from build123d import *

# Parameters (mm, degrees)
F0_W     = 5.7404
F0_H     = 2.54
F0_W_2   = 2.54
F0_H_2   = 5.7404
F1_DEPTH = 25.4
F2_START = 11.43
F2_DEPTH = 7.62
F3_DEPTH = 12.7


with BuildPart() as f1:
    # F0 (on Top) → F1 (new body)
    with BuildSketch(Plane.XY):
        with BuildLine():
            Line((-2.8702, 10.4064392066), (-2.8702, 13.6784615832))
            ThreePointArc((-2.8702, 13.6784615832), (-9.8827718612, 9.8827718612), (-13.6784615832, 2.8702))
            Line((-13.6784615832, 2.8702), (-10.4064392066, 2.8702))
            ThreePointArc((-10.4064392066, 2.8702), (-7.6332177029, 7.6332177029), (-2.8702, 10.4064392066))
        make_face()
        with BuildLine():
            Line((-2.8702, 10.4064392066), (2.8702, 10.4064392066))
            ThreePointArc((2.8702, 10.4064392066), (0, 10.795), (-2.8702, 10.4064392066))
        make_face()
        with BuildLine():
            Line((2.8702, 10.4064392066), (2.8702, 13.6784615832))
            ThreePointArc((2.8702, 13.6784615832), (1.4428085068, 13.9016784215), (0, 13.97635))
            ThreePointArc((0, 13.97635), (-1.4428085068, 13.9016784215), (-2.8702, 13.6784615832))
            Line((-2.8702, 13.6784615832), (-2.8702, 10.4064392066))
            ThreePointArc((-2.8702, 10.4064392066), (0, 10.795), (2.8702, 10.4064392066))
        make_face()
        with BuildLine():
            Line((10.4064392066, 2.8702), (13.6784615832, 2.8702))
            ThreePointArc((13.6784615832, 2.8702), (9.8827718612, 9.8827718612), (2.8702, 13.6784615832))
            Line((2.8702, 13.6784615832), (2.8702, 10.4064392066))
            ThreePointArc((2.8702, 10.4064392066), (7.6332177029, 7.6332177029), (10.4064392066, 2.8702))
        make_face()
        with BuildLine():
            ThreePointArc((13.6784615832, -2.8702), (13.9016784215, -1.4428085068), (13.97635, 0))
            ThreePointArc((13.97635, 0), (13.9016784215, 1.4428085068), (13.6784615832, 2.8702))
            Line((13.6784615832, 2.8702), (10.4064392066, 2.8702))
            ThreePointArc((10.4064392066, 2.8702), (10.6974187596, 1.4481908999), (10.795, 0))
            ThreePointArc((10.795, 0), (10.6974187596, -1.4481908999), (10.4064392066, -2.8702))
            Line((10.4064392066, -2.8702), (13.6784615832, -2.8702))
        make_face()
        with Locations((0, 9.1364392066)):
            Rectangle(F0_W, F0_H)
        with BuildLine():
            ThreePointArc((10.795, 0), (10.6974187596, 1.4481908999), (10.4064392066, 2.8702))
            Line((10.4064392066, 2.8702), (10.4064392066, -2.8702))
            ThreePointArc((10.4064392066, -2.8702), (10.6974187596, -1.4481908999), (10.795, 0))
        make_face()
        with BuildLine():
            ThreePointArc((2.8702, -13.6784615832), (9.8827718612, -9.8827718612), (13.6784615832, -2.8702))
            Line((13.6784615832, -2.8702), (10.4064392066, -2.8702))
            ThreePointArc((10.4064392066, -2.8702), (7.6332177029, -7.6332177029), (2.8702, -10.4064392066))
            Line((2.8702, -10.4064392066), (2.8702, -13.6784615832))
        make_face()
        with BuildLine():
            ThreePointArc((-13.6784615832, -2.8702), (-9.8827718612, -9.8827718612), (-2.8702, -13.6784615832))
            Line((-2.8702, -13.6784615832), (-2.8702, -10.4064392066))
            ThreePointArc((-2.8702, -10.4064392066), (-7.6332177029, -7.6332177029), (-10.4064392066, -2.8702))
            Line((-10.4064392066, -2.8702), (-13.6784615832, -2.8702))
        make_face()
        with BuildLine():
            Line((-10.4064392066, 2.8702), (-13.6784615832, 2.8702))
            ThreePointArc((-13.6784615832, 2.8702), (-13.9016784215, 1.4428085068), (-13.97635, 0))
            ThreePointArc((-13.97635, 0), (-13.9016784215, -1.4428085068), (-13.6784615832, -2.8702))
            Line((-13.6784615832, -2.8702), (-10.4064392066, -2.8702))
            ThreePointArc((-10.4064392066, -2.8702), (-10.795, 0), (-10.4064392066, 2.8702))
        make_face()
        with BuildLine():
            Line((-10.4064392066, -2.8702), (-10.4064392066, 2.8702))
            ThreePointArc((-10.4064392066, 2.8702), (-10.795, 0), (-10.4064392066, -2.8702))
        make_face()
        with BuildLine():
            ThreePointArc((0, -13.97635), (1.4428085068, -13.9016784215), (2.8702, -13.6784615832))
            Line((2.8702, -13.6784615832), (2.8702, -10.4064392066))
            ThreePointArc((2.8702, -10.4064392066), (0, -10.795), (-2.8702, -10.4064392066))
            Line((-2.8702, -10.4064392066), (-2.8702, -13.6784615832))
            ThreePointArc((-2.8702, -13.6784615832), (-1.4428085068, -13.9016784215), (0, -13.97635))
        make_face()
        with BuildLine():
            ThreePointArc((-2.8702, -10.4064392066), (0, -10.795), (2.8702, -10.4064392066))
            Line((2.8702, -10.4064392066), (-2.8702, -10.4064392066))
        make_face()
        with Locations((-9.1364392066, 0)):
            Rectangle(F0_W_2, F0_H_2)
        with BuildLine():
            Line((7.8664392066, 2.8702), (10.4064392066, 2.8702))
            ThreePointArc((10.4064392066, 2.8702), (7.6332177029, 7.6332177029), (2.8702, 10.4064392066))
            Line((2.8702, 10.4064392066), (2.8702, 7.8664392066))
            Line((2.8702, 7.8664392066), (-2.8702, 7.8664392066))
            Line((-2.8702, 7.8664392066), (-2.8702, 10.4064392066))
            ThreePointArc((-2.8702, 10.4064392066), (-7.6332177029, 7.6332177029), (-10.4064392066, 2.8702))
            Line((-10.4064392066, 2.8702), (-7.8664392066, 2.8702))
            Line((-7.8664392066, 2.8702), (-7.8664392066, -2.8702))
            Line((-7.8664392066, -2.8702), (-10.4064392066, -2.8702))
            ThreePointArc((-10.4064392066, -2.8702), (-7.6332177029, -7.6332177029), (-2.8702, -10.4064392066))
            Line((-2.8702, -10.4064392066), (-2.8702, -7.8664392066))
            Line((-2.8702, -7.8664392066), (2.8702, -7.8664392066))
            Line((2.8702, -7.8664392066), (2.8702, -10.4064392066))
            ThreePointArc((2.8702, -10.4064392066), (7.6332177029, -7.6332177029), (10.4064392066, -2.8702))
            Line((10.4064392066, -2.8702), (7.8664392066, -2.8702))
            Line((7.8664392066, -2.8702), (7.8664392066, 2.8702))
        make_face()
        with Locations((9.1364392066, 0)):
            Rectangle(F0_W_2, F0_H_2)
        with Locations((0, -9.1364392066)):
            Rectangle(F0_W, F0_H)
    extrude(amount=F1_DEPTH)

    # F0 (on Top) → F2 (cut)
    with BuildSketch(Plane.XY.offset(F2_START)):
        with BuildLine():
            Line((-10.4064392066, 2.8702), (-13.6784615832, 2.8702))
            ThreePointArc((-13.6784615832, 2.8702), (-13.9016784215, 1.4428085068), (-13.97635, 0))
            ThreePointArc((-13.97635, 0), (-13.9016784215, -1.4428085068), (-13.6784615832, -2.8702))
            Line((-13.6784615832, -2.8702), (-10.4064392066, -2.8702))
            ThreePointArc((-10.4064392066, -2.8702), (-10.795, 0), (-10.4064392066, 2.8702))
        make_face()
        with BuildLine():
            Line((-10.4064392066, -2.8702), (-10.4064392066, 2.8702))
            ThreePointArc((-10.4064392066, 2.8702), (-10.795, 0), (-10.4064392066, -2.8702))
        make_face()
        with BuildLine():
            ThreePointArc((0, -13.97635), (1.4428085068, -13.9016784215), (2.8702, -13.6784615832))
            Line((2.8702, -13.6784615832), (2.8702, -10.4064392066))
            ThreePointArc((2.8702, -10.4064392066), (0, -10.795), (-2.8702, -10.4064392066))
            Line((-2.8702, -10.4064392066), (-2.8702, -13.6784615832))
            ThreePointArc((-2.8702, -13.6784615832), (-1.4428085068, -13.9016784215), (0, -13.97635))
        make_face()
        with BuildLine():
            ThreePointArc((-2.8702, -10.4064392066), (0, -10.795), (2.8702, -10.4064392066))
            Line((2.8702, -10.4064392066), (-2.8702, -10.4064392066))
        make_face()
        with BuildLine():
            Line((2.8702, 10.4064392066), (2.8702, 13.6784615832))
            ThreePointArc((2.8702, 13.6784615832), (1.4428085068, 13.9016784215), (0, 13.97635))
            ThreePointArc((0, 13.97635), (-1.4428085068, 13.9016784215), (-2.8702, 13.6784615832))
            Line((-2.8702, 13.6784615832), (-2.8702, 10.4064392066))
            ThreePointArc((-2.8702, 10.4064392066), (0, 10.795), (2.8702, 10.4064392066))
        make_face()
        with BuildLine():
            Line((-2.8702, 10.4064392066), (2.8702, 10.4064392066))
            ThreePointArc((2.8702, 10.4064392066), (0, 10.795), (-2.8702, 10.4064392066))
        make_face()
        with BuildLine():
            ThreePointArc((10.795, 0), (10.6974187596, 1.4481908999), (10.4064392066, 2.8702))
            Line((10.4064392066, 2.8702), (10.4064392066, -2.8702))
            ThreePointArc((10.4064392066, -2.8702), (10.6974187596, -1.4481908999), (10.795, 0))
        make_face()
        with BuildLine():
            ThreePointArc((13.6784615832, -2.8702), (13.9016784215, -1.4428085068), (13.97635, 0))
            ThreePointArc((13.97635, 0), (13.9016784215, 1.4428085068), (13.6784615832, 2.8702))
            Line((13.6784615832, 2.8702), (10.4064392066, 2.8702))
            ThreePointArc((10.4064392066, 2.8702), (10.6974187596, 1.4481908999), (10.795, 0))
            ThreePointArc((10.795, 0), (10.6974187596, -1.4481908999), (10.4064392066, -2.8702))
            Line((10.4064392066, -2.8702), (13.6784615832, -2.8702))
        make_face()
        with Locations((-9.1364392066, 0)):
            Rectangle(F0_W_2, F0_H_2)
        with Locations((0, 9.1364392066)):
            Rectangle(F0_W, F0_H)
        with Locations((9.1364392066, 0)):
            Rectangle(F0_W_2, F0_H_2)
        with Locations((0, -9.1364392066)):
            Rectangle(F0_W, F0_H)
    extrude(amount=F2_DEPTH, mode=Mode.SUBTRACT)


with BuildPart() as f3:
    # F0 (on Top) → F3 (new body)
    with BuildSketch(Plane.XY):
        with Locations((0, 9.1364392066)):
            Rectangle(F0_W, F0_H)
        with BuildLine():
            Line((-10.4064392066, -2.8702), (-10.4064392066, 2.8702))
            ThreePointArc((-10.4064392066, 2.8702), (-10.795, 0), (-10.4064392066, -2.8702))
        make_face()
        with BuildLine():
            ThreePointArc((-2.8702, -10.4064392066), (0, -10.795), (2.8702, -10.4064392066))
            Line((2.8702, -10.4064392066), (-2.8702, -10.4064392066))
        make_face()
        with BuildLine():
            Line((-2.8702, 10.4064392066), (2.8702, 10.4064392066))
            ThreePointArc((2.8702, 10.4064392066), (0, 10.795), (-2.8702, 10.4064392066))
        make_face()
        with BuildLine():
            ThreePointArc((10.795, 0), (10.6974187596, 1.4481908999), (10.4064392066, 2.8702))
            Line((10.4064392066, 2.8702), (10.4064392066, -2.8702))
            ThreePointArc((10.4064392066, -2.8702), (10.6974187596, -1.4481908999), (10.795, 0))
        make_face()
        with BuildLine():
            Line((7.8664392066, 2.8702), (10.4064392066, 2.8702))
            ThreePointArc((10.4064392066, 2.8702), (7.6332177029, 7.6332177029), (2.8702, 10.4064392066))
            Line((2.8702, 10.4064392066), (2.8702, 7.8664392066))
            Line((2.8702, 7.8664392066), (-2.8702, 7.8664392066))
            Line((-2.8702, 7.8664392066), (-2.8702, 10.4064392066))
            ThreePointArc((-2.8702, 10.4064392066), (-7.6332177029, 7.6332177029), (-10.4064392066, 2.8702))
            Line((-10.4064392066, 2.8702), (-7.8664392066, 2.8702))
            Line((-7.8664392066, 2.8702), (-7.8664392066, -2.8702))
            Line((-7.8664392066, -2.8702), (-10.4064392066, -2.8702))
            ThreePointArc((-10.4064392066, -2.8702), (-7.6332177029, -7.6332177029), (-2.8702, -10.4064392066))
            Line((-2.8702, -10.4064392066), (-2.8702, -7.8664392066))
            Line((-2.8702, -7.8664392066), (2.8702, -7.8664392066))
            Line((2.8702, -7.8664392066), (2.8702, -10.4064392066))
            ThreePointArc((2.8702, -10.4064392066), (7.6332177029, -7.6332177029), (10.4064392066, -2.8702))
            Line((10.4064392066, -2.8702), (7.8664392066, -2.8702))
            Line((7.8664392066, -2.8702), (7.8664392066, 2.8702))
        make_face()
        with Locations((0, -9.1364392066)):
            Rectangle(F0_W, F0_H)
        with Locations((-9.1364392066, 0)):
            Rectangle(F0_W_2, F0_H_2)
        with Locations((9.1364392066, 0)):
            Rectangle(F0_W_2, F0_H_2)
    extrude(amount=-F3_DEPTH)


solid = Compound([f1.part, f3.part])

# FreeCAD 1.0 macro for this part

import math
import FreeCAD as App
import Part
import Sketcher
Q = App.Units.Quantity

doc = App.newDocument("Part")
body = doc.addObject("PartDesign::Body", "Body")

sketch1 = body.newObject("Sketcher::SketchObject", "Sketch")
sketch1.AttachmentSupport = (doc.getObject("XY_Plane"), [""])
sketch1.MapMode = "FlatFace"
sketch1.addGeometry(Part.ArcOfCircle(Part.Circle(App.Vector(0, 0, 0), App.Vector(0, 0, 1), 14), math.radians(102), math.radians(168)), False)
sketch1.addGeometry(Part.ArcOfCircle(Part.Circle(App.Vector(0, 0, 0), App.Vector(0, 0, 1), 14), math.radians(168.15), math.radians(180)), False)
sketch1.addGeometry(Part.ArcOfCircle(Part.Circle(App.Vector(0, 0, 0), App.Vector(0, 0, 1), 14), math.radians(180), math.radians(191.85)), False)
sketch1.addGeometry(Part.ArcOfCircle(Part.Circle(App.Vector(0, 0, 0), App.Vector(0, 0, 1), 14), math.radians(-168), math.radians(-102)), False)
sketch1.addGeometry(Part.ArcOfCircle(Part.Circle(App.Vector(0, 0, 0), App.Vector(0, 0, 1), 14), math.radians(-101.85), math.radians(-90)), False)
sketch1.addGeometry(Part.ArcOfCircle(Part.Circle(App.Vector(0, 0, 0), App.Vector(0, 0, 1), 14), math.radians(-90), math.radians(-78.15)), False)
sketch1.addGeometry(Part.ArcOfCircle(Part.Circle(App.Vector(0, 0, 0), App.Vector(0, 0, 1), 14), math.radians(-78), math.radians(-12)), False)
sketch1.addGeometry(Part.ArcOfCircle(Part.Circle(App.Vector(0, 0, 0), App.Vector(0, 0, 1), 14), math.radians(-11.85), math.radians(0)), False)
sketch1.addGeometry(Part.ArcOfCircle(Part.Circle(App.Vector(0, 0, 0), App.Vector(0, 0, 1), 14), math.radians(0), math.radians(11.85)), False)
sketch1.addGeometry(Part.ArcOfCircle(Part.Circle(App.Vector(0, 0, 0), App.Vector(0, 0, 1), 14), math.radians(12), math.radians(78)), False)
sketch1.addGeometry(Part.ArcOfCircle(Part.Circle(App.Vector(0, 0, 0), App.Vector(0, 0, 1), 14), math.radians(78.15), math.radians(90)), False)
sketch1.addGeometry(Part.ArcOfCircle(Part.Circle(App.Vector(0, 0, 0), App.Vector(0, 0, 1), 14), math.radians(90), math.radians(101.85)), False)
sketch1.addConstraint(Sketcher.Constraint("Tangent", 0, 2, 1, 1))
sketch1.addConstraint(Sketcher.Constraint("Tangent", 1, 2, 2, 1))
sketch1.addConstraint(Sketcher.Constraint("Tangent", 2, 2, 3, 1))
sketch1.addConstraint(Sketcher.Constraint("Tangent", 3, 2, 4, 1))
sketch1.addConstraint(Sketcher.Constraint("Tangent", 4, 2, 5, 1))
sketch1.addConstraint(Sketcher.Constraint("Tangent", 5, 2, 6, 1))
sketch1.addConstraint(Sketcher.Constraint("Tangent", 6, 2, 7, 1))
sketch1.addConstraint(Sketcher.Constraint("Tangent", 7, 2, 8, 1))
sketch1.addConstraint(Sketcher.Constraint("Tangent", 8, 2, 9, 1))
sketch1.addConstraint(Sketcher.Constraint("Tangent", 9, 2, 10, 1))
sketch1.addConstraint(Sketcher.Constraint("Tangent", 10, 2, 11, 1))
sketch1.addConstraint(Sketcher.Constraint("Tangent", 11, 2, 0, 1))
sketch1.addConstraint(Sketcher.Constraint("Coincident", 0, 3, -1, 1))
sketch1.addConstraint(Sketcher.Constraint("Coincident", 2, 3, -1, 1))
sketch1.addConstraint(Sketcher.Constraint("Coincident", 4, 3, -1, 1))
sketch1.addConstraint(Sketcher.Constraint("Coincident", 6, 3, -1, 1))
sketch1.addConstraint(Sketcher.Constraint("Coincident", 8, 3, -1, 1))
sketch1.addConstraint(Sketcher.Constraint("Equal", 8, 9))
sketch1.addConstraint(Sketcher.Constraint("PointOnObject", 1, 2, -1))
sketch1.addConstraint(Sketcher.Constraint("PointOnObject", 4, 2, -2))
sketch1.addConstraint(Sketcher.Constraint("PointOnObject", 7, 2, -1))
sketch1.addConstraint(Sketcher.Constraint("PointOnObject", 10, 2, -2))
sketch1.addConstraint(Sketcher.Constraint("Horizontal", 3, 2, 5, 2))
sketch1.addConstraint(Sketcher.Constraint("Horizontal", 2, 2, 6, 2))
sketch1.addConstraint(Sketcher.Constraint("Horizontal", 0, 2, 8, 2))
sketch1.addConstraint(Sketcher.Constraint("Horizontal", 9, 2, 11, 2))
sketch1.addConstraint(Sketcher.Constraint("Vertical", 0, 2, 2, 2))
sketch1.addConstraint(Sketcher.Constraint("Vertical", 5, 2, 9, 2))
sketch1.addConstraint(Sketcher.Constraint("DistanceY", -1, 1, 0, 2, Q("0.113 in")))
sketch1.addConstraint(Sketcher.Constraint("DistanceX", 3, 2, -1, 1, Q("0.113 in")))
sketch1.addConstraint(Sketcher.Constraint("Radius", 0, Q("13.97635 mm")))
pad1 = body.newObject("PartDesign::Pad", "Pad")
pad1.Profile = sketch1
pad1.Length = Q("1 in")

sketch2 = body.newObject("Sketcher::SketchObject", "Sketch001")
sketch2.AttachmentSupport = (doc.getObject("XY_Plane"), [""])
sketch2.MapMode = "FlatFace"
sketch2.AttachmentOffset = App.Placement(App.Vector(0, 0, 0.45 * 25.4), App.Rotation())
sketch2.addGeometry(Part.ArcOfCircle(Part.Circle(App.Vector(0, 0, 0), App.Vector(0, 0, 1), 14), math.radians(168.15), math.radians(180)), False)
sketch2.addGeometry(Part.ArcOfCircle(Part.Circle(App.Vector(0, 0, 0), App.Vector(0, 0, 1), 14), math.radians(180), math.radians(191.85)), False)
sketch2.addGeometry(Part.LineSegment(App.Vector(-13.7, -2.9, 0), App.Vector(-7.9, -2.9, 0)), False)
sketch2.addGeometry(Part.LineSegment(App.Vector(-7.9, -2.9, 0), App.Vector(-7.9, 2.9, 0)), False)
sketch2.addGeometry(Part.LineSegment(App.Vector(-7.9, 2.9, 0), App.Vector(-13.7, 2.9, 0)), False)
sketch2.addGeometry(Part.ArcOfCircle(Part.Circle(App.Vector(0, 0, 0), App.Vector(0, 0, 1), 14), math.radians(-90), math.radians(-78.15)), False)
sketch2.addGeometry(Part.LineSegment(App.Vector(2.9, -13.7, 0), App.Vector(2.9, -7.9, 0)), False)
sketch2.addGeometry(Part.LineSegment(App.Vector(2.9, -7.9, 0), App.Vector(-2.9, -7.9, 0)), False)
sketch2.addGeometry(Part.LineSegment(App.Vector(-2.9, -7.9, 0), App.Vector(-2.9, -13.7, 0)), False)
sketch2.addGeometry(Part.ArcOfCircle(Part.Circle(App.Vector(0, 0, 0), App.Vector(0, 0, 1), 14), math.radians(-101.85), math.radians(-90)), False)
sketch2.addGeometry(Part.ArcOfCircle(Part.Circle(App.Vector(0, 0, 0), App.Vector(0, 0, 1), 14), math.radians(78.15), math.radians(90)), False)
sketch2.addGeometry(Part.ArcOfCircle(Part.Circle(App.Vector(0, 0, 0), App.Vector(0, 0, 1), 14), math.radians(90), math.radians(101.85)), False)
sketch2.addGeometry(Part.LineSegment(App.Vector(-2.9, 13.7, 0), App.Vector(-2.9, 7.9, 0)), False)
sketch2.addGeometry(Part.LineSegment(App.Vector(-2.9, 7.9, 0), App.Vector(2.9, 7.9, 0)), False)
sketch2.addGeometry(Part.LineSegment(App.Vector(2.9, 7.9, 0), App.Vector(2.9, 13.7, 0)), False)
sketch2.addGeometry(Part.ArcOfCircle(Part.Circle(App.Vector(0, 0, 0), App.Vector(0, 0, 1), 14), math.radians(-11.85), math.radians(0)), False)
sketch2.addGeometry(Part.ArcOfCircle(Part.Circle(App.Vector(0, 0, 0), App.Vector(0, 0, 1), 14), math.radians(0), math.radians(11.85)), False)
sketch2.addGeometry(Part.LineSegment(App.Vector(13.7, 2.9, 0), App.Vector(7.9, 2.9, 0)), False)
sketch2.addGeometry(Part.LineSegment(App.Vector(7.9, 2.9, 0), App.Vector(7.9, -2.9, 0)), False)
sketch2.addGeometry(Part.LineSegment(App.Vector(7.9, -2.9, 0), App.Vector(13.7, -2.9, 0)), False)
sketch2.addConstraint(Sketcher.Constraint("Tangent", 0, 2, 1, 1))
sketch2.addConstraint(Sketcher.Constraint("Coincident", 1, 2, 2, 1))
sketch2.addConstraint(Sketcher.Constraint("Coincident", 2, 2, 3, 1))
sketch2.addConstraint(Sketcher.Constraint("Coincident", 3, 2, 4, 1))
sketch2.addConstraint(Sketcher.Constraint("Coincident", 4, 2, 0, 1))
sketch2.addConstraint(Sketcher.Constraint("Coincident", 5, 2, 6, 1))
sketch2.addConstraint(Sketcher.Constraint("Coincident", 6, 2, 7, 1))
sketch2.addConstraint(Sketcher.Constraint("Coincident", 7, 2, 8, 1))
sketch2.addConstraint(Sketcher.Constraint("Coincident", 8, 2, 9, 1))
sketch2.addConstraint(Sketcher.Constraint("Tangent", 9, 2, 5, 1))
sketch2.addConstraint(Sketcher.Constraint("Tangent", 10, 2, 11, 1))
sketch2.addConstraint(Sketcher.Constraint("Coincident", 11, 2, 12, 1))
sketch2.addConstraint(Sketcher.Constraint("Coincident", 12, 2, 13, 1))
sketch2.addConstraint(Sketcher.Constraint("Coincident", 13, 2, 14, 1))
sketch2.addConstraint(Sketcher.Constraint("Coincident", 14, 2, 10, 1))
sketch2.addConstraint(Sketcher.Constraint("Tangent", 15, 2, 16, 1))
sketch2.addConstraint(Sketcher.Constraint("Coincident", 16, 2, 17, 1))
sketch2.addConstraint(Sketcher.Constraint("Coincident", 17, 2, 18, 1))
sketch2.addConstraint(Sketcher.Constraint("Coincident", 18, 2, 19, 1))
sketch2.addConstraint(Sketcher.Constraint("Coincident", 19, 2, 15, 1))
sketch2.addConstraint(Sketcher.Constraint("Horizontal", 2))
sketch2.addConstraint(Sketcher.Constraint("Vertical", 3))
sketch2.addConstraint(Sketcher.Constraint("Horizontal", 4))
sketch2.addConstraint(Sketcher.Constraint("Vertical", 6))
sketch2.addConstraint(Sketcher.Constraint("Horizontal", 7))
sketch2.addConstraint(Sketcher.Constraint("Vertical", 8))
sketch2.addConstraint(Sketcher.Constraint("Vertical", 12))
sketch2.addConstraint(Sketcher.Constraint("Horizontal", 13))
sketch2.addConstraint(Sketcher.Constraint("Vertical", 14))
sketch2.addConstraint(Sketcher.Constraint("Horizontal", 17))
sketch2.addConstraint(Sketcher.Constraint("Vertical", 18))
sketch2.addConstraint(Sketcher.Constraint("Horizontal", 19))
sketch2.addConstraint(Sketcher.Constraint("Coincident", 0, 3, -1, 1))
sketch2.addConstraint(Sketcher.Constraint("Coincident", 5, 3, -1, 1))
sketch2.addConstraint(Sketcher.Constraint("Coincident", 10, 3, -1, 1))
sketch2.addConstraint(Sketcher.Constraint("Coincident", 15, 3, -1, 1))
sketch2.addConstraint(Sketcher.Constraint("Equal", 0, 1))
sketch2.addConstraint(Sketcher.Constraint("Equal", 1, 5))
sketch2.addConstraint(Sketcher.Constraint("Equal", 5, 9))
sketch2.addConstraint(Sketcher.Constraint("Equal", 9, 10))
sketch2.addConstraint(Sketcher.Constraint("Equal", 10, 11))
sketch2.addConstraint(Sketcher.Constraint("Equal", 11, 15))
sketch2.addConstraint(Sketcher.Constraint("Equal", 15, 16))
sketch2.addConstraint(Sketcher.Constraint("Symmetric", 6, 2, 12, 2, -1, 1))
sketch2.addConstraint(Sketcher.Constraint("Symmetric", 2, 2, 17, 2, -1, 1))
sketch2.addConstraint(Sketcher.Constraint("PointOnObject", 0, 2, -1))
sketch2.addConstraint(Sketcher.Constraint("PointOnObject", 9, 2, -2))
sketch2.addConstraint(Sketcher.Constraint("PointOnObject", 10, 2, -2))
sketch2.addConstraint(Sketcher.Constraint("PointOnObject", 15, 2, -1))
sketch2.addConstraint(Sketcher.Constraint("Horizontal", 5, 2, 8, 2))
sketch2.addConstraint(Sketcher.Constraint("Horizontal", 11, 2, 14, 2))
sketch2.addConstraint(Sketcher.Constraint("Horizontal", 4, 2, 16, 2))
sketch2.addConstraint(Sketcher.Constraint("Horizontal", 2, 2, 18, 2))
sketch2.addConstraint(Sketcher.Constraint("Equal", 13, 3))
sketch2.addConstraint(Sketcher.Constraint("Equal", 19, 6))
sketch2.addConstraint(Sketcher.Constraint("DistanceX", 7, 2, 7, 1, Q("0.226 in")))
sketch2.addConstraint(Sketcher.Constraint("Radius", 0, Q("13.97635 mm")))
sketch2.addConstraint(Sketcher.Constraint("DistanceX", 2, 1, 2, 2, Q("5.812022 mm")))
pocket1 = body.newObject("PartDesign::Pocket", "Pocket")
pocket1.Profile = sketch2
pocket1.Length = Q("0.3 in")
pocket1.Reversed = True
body2 = doc.addObject("PartDesign::Body", "Body001")

sketch3 = body2.newObject("Sketcher::SketchObject", "Sketch002")
sketch3.AttachmentSupport = (doc.getObject("XY_Plane001"), [""])
sketch3.MapMode = "FlatFace"
sketch3.addGeometry(Part.ArcOfCircle(Part.Circle(App.Vector(0, 0, 0), App.Vector(0, 0, 1), 10.8), math.radians(75), math.radians(105)), False)
sketch3.addGeometry(Part.ArcOfCircle(Part.Circle(App.Vector(0, 0, 0), App.Vector(0, 0, 1), 10.8), math.radians(105), math.radians(165)), False)
sketch3.addGeometry(Part.ArcOfCircle(Part.Circle(App.Vector(0, 0, 0), App.Vector(0, 0, 1), 10.8), math.radians(165), math.radians(195)), False)
sketch3.addGeometry(Part.ArcOfCircle(Part.Circle(App.Vector(0, 0, 0), App.Vector(0, 0, 1), 10.8), math.radians(-165), math.radians(-105)), False)
sketch3.addGeometry(Part.ArcOfCircle(Part.Circle(App.Vector(0, 0, 0), App.Vector(0, 0, 1), 10.8), math.radians(-105), math.radians(-75)), False)
sketch3.addGeometry(Part.ArcOfCircle(Part.Circle(App.Vector(0, 0, 0), App.Vector(0, 0, 1), 10.8), math.radians(-75), math.radians(-15)), False)
sketch3.addGeometry(Part.ArcOfCircle(Part.Circle(App.Vector(0, 0, 0), App.Vector(0, 0, 1), 10.8), math.radians(-15.42), math.radians(0)), False)
sketch3.addGeometry(Part.ArcOfCircle(Part.Circle(App.Vector(0, 0, 0), App.Vector(0, 0, 1), 10.8), math.radians(0), math.radians(15.42)), False)
sketch3.addGeometry(Part.ArcOfCircle(Part.Circle(App.Vector(0, 0, 0), App.Vector(0, 0, 1), 10.8), math.radians(15), math.radians(75)), False)
sketch3.addConstraint(Sketcher.Constraint("Tangent", 0, 2, 1, 1))
sketch3.addConstraint(Sketcher.Constraint("Tangent", 1, 2, 2, 1))
sketch3.addConstraint(Sketcher.Constraint("Tangent", 2, 2, 3, 1))
sketch3.addConstraint(Sketcher.Constraint("Tangent", 3, 2, 4, 1))
sketch3.addConstraint(Sketcher.Constraint("Tangent", 4, 2, 5, 1))
sketch3.addConstraint(Sketcher.Constraint("Tangent", 5, 2, 6, 1))
sketch3.addConstraint(Sketcher.Constraint("Tangent", 6, 2, 7, 1))
sketch3.addConstraint(Sketcher.Constraint("Tangent", 7, 2, 8, 1))
sketch3.addConstraint(Sketcher.Constraint("Tangent", 8, 2, 0, 1))
sketch3.addConstraint(Sketcher.Constraint("Coincident", 0, 3, -1, 1))
sketch3.addConstraint(Sketcher.Constraint("Coincident", 2, 3, -1, 1))
sketch3.addConstraint(Sketcher.Constraint("Coincident", 4, 3, -1, 1))
sketch3.addConstraint(Sketcher.Constraint("Coincident", 6, 3, -1, 1))
sketch3.addConstraint(Sketcher.Constraint("PointOnObject", 6, 2, -1))
sketch3.addConstraint(Sketcher.Constraint("Horizontal", 3, 2, 4, 2))
sketch3.addConstraint(Sketcher.Constraint("Horizontal", 2, 2, 5, 2))
sketch3.addConstraint(Sketcher.Constraint("Horizontal", 1, 2, 7, 2))
sketch3.addConstraint(Sketcher.Constraint("Horizontal", 0, 2, 8, 2))
sketch3.addConstraint(Sketcher.Constraint("Vertical", 1, 2, 2, 2))
sketch3.addConstraint(Sketcher.Constraint("Vertical", 0, 2, 3, 2))
sketch3.addConstraint(Sketcher.Constraint("Radius", 0, Q("0.425 in")))
sketch3.addConstraint(Sketcher.Constraint("DistanceX", 0, 2, -1, 1, Q("0.113 in")))
sketch3.addConstraint(Sketcher.Constraint("DistanceY", -1, 1, 1, 2, Q("0.113 in")))
pad2 = body2.newObject("PartDesign::Pad", "Pad001")
pad2.Profile = sketch3
pad2.Length = Q("0.5 in")
pad2.Reversed = True

doc.recompute()
